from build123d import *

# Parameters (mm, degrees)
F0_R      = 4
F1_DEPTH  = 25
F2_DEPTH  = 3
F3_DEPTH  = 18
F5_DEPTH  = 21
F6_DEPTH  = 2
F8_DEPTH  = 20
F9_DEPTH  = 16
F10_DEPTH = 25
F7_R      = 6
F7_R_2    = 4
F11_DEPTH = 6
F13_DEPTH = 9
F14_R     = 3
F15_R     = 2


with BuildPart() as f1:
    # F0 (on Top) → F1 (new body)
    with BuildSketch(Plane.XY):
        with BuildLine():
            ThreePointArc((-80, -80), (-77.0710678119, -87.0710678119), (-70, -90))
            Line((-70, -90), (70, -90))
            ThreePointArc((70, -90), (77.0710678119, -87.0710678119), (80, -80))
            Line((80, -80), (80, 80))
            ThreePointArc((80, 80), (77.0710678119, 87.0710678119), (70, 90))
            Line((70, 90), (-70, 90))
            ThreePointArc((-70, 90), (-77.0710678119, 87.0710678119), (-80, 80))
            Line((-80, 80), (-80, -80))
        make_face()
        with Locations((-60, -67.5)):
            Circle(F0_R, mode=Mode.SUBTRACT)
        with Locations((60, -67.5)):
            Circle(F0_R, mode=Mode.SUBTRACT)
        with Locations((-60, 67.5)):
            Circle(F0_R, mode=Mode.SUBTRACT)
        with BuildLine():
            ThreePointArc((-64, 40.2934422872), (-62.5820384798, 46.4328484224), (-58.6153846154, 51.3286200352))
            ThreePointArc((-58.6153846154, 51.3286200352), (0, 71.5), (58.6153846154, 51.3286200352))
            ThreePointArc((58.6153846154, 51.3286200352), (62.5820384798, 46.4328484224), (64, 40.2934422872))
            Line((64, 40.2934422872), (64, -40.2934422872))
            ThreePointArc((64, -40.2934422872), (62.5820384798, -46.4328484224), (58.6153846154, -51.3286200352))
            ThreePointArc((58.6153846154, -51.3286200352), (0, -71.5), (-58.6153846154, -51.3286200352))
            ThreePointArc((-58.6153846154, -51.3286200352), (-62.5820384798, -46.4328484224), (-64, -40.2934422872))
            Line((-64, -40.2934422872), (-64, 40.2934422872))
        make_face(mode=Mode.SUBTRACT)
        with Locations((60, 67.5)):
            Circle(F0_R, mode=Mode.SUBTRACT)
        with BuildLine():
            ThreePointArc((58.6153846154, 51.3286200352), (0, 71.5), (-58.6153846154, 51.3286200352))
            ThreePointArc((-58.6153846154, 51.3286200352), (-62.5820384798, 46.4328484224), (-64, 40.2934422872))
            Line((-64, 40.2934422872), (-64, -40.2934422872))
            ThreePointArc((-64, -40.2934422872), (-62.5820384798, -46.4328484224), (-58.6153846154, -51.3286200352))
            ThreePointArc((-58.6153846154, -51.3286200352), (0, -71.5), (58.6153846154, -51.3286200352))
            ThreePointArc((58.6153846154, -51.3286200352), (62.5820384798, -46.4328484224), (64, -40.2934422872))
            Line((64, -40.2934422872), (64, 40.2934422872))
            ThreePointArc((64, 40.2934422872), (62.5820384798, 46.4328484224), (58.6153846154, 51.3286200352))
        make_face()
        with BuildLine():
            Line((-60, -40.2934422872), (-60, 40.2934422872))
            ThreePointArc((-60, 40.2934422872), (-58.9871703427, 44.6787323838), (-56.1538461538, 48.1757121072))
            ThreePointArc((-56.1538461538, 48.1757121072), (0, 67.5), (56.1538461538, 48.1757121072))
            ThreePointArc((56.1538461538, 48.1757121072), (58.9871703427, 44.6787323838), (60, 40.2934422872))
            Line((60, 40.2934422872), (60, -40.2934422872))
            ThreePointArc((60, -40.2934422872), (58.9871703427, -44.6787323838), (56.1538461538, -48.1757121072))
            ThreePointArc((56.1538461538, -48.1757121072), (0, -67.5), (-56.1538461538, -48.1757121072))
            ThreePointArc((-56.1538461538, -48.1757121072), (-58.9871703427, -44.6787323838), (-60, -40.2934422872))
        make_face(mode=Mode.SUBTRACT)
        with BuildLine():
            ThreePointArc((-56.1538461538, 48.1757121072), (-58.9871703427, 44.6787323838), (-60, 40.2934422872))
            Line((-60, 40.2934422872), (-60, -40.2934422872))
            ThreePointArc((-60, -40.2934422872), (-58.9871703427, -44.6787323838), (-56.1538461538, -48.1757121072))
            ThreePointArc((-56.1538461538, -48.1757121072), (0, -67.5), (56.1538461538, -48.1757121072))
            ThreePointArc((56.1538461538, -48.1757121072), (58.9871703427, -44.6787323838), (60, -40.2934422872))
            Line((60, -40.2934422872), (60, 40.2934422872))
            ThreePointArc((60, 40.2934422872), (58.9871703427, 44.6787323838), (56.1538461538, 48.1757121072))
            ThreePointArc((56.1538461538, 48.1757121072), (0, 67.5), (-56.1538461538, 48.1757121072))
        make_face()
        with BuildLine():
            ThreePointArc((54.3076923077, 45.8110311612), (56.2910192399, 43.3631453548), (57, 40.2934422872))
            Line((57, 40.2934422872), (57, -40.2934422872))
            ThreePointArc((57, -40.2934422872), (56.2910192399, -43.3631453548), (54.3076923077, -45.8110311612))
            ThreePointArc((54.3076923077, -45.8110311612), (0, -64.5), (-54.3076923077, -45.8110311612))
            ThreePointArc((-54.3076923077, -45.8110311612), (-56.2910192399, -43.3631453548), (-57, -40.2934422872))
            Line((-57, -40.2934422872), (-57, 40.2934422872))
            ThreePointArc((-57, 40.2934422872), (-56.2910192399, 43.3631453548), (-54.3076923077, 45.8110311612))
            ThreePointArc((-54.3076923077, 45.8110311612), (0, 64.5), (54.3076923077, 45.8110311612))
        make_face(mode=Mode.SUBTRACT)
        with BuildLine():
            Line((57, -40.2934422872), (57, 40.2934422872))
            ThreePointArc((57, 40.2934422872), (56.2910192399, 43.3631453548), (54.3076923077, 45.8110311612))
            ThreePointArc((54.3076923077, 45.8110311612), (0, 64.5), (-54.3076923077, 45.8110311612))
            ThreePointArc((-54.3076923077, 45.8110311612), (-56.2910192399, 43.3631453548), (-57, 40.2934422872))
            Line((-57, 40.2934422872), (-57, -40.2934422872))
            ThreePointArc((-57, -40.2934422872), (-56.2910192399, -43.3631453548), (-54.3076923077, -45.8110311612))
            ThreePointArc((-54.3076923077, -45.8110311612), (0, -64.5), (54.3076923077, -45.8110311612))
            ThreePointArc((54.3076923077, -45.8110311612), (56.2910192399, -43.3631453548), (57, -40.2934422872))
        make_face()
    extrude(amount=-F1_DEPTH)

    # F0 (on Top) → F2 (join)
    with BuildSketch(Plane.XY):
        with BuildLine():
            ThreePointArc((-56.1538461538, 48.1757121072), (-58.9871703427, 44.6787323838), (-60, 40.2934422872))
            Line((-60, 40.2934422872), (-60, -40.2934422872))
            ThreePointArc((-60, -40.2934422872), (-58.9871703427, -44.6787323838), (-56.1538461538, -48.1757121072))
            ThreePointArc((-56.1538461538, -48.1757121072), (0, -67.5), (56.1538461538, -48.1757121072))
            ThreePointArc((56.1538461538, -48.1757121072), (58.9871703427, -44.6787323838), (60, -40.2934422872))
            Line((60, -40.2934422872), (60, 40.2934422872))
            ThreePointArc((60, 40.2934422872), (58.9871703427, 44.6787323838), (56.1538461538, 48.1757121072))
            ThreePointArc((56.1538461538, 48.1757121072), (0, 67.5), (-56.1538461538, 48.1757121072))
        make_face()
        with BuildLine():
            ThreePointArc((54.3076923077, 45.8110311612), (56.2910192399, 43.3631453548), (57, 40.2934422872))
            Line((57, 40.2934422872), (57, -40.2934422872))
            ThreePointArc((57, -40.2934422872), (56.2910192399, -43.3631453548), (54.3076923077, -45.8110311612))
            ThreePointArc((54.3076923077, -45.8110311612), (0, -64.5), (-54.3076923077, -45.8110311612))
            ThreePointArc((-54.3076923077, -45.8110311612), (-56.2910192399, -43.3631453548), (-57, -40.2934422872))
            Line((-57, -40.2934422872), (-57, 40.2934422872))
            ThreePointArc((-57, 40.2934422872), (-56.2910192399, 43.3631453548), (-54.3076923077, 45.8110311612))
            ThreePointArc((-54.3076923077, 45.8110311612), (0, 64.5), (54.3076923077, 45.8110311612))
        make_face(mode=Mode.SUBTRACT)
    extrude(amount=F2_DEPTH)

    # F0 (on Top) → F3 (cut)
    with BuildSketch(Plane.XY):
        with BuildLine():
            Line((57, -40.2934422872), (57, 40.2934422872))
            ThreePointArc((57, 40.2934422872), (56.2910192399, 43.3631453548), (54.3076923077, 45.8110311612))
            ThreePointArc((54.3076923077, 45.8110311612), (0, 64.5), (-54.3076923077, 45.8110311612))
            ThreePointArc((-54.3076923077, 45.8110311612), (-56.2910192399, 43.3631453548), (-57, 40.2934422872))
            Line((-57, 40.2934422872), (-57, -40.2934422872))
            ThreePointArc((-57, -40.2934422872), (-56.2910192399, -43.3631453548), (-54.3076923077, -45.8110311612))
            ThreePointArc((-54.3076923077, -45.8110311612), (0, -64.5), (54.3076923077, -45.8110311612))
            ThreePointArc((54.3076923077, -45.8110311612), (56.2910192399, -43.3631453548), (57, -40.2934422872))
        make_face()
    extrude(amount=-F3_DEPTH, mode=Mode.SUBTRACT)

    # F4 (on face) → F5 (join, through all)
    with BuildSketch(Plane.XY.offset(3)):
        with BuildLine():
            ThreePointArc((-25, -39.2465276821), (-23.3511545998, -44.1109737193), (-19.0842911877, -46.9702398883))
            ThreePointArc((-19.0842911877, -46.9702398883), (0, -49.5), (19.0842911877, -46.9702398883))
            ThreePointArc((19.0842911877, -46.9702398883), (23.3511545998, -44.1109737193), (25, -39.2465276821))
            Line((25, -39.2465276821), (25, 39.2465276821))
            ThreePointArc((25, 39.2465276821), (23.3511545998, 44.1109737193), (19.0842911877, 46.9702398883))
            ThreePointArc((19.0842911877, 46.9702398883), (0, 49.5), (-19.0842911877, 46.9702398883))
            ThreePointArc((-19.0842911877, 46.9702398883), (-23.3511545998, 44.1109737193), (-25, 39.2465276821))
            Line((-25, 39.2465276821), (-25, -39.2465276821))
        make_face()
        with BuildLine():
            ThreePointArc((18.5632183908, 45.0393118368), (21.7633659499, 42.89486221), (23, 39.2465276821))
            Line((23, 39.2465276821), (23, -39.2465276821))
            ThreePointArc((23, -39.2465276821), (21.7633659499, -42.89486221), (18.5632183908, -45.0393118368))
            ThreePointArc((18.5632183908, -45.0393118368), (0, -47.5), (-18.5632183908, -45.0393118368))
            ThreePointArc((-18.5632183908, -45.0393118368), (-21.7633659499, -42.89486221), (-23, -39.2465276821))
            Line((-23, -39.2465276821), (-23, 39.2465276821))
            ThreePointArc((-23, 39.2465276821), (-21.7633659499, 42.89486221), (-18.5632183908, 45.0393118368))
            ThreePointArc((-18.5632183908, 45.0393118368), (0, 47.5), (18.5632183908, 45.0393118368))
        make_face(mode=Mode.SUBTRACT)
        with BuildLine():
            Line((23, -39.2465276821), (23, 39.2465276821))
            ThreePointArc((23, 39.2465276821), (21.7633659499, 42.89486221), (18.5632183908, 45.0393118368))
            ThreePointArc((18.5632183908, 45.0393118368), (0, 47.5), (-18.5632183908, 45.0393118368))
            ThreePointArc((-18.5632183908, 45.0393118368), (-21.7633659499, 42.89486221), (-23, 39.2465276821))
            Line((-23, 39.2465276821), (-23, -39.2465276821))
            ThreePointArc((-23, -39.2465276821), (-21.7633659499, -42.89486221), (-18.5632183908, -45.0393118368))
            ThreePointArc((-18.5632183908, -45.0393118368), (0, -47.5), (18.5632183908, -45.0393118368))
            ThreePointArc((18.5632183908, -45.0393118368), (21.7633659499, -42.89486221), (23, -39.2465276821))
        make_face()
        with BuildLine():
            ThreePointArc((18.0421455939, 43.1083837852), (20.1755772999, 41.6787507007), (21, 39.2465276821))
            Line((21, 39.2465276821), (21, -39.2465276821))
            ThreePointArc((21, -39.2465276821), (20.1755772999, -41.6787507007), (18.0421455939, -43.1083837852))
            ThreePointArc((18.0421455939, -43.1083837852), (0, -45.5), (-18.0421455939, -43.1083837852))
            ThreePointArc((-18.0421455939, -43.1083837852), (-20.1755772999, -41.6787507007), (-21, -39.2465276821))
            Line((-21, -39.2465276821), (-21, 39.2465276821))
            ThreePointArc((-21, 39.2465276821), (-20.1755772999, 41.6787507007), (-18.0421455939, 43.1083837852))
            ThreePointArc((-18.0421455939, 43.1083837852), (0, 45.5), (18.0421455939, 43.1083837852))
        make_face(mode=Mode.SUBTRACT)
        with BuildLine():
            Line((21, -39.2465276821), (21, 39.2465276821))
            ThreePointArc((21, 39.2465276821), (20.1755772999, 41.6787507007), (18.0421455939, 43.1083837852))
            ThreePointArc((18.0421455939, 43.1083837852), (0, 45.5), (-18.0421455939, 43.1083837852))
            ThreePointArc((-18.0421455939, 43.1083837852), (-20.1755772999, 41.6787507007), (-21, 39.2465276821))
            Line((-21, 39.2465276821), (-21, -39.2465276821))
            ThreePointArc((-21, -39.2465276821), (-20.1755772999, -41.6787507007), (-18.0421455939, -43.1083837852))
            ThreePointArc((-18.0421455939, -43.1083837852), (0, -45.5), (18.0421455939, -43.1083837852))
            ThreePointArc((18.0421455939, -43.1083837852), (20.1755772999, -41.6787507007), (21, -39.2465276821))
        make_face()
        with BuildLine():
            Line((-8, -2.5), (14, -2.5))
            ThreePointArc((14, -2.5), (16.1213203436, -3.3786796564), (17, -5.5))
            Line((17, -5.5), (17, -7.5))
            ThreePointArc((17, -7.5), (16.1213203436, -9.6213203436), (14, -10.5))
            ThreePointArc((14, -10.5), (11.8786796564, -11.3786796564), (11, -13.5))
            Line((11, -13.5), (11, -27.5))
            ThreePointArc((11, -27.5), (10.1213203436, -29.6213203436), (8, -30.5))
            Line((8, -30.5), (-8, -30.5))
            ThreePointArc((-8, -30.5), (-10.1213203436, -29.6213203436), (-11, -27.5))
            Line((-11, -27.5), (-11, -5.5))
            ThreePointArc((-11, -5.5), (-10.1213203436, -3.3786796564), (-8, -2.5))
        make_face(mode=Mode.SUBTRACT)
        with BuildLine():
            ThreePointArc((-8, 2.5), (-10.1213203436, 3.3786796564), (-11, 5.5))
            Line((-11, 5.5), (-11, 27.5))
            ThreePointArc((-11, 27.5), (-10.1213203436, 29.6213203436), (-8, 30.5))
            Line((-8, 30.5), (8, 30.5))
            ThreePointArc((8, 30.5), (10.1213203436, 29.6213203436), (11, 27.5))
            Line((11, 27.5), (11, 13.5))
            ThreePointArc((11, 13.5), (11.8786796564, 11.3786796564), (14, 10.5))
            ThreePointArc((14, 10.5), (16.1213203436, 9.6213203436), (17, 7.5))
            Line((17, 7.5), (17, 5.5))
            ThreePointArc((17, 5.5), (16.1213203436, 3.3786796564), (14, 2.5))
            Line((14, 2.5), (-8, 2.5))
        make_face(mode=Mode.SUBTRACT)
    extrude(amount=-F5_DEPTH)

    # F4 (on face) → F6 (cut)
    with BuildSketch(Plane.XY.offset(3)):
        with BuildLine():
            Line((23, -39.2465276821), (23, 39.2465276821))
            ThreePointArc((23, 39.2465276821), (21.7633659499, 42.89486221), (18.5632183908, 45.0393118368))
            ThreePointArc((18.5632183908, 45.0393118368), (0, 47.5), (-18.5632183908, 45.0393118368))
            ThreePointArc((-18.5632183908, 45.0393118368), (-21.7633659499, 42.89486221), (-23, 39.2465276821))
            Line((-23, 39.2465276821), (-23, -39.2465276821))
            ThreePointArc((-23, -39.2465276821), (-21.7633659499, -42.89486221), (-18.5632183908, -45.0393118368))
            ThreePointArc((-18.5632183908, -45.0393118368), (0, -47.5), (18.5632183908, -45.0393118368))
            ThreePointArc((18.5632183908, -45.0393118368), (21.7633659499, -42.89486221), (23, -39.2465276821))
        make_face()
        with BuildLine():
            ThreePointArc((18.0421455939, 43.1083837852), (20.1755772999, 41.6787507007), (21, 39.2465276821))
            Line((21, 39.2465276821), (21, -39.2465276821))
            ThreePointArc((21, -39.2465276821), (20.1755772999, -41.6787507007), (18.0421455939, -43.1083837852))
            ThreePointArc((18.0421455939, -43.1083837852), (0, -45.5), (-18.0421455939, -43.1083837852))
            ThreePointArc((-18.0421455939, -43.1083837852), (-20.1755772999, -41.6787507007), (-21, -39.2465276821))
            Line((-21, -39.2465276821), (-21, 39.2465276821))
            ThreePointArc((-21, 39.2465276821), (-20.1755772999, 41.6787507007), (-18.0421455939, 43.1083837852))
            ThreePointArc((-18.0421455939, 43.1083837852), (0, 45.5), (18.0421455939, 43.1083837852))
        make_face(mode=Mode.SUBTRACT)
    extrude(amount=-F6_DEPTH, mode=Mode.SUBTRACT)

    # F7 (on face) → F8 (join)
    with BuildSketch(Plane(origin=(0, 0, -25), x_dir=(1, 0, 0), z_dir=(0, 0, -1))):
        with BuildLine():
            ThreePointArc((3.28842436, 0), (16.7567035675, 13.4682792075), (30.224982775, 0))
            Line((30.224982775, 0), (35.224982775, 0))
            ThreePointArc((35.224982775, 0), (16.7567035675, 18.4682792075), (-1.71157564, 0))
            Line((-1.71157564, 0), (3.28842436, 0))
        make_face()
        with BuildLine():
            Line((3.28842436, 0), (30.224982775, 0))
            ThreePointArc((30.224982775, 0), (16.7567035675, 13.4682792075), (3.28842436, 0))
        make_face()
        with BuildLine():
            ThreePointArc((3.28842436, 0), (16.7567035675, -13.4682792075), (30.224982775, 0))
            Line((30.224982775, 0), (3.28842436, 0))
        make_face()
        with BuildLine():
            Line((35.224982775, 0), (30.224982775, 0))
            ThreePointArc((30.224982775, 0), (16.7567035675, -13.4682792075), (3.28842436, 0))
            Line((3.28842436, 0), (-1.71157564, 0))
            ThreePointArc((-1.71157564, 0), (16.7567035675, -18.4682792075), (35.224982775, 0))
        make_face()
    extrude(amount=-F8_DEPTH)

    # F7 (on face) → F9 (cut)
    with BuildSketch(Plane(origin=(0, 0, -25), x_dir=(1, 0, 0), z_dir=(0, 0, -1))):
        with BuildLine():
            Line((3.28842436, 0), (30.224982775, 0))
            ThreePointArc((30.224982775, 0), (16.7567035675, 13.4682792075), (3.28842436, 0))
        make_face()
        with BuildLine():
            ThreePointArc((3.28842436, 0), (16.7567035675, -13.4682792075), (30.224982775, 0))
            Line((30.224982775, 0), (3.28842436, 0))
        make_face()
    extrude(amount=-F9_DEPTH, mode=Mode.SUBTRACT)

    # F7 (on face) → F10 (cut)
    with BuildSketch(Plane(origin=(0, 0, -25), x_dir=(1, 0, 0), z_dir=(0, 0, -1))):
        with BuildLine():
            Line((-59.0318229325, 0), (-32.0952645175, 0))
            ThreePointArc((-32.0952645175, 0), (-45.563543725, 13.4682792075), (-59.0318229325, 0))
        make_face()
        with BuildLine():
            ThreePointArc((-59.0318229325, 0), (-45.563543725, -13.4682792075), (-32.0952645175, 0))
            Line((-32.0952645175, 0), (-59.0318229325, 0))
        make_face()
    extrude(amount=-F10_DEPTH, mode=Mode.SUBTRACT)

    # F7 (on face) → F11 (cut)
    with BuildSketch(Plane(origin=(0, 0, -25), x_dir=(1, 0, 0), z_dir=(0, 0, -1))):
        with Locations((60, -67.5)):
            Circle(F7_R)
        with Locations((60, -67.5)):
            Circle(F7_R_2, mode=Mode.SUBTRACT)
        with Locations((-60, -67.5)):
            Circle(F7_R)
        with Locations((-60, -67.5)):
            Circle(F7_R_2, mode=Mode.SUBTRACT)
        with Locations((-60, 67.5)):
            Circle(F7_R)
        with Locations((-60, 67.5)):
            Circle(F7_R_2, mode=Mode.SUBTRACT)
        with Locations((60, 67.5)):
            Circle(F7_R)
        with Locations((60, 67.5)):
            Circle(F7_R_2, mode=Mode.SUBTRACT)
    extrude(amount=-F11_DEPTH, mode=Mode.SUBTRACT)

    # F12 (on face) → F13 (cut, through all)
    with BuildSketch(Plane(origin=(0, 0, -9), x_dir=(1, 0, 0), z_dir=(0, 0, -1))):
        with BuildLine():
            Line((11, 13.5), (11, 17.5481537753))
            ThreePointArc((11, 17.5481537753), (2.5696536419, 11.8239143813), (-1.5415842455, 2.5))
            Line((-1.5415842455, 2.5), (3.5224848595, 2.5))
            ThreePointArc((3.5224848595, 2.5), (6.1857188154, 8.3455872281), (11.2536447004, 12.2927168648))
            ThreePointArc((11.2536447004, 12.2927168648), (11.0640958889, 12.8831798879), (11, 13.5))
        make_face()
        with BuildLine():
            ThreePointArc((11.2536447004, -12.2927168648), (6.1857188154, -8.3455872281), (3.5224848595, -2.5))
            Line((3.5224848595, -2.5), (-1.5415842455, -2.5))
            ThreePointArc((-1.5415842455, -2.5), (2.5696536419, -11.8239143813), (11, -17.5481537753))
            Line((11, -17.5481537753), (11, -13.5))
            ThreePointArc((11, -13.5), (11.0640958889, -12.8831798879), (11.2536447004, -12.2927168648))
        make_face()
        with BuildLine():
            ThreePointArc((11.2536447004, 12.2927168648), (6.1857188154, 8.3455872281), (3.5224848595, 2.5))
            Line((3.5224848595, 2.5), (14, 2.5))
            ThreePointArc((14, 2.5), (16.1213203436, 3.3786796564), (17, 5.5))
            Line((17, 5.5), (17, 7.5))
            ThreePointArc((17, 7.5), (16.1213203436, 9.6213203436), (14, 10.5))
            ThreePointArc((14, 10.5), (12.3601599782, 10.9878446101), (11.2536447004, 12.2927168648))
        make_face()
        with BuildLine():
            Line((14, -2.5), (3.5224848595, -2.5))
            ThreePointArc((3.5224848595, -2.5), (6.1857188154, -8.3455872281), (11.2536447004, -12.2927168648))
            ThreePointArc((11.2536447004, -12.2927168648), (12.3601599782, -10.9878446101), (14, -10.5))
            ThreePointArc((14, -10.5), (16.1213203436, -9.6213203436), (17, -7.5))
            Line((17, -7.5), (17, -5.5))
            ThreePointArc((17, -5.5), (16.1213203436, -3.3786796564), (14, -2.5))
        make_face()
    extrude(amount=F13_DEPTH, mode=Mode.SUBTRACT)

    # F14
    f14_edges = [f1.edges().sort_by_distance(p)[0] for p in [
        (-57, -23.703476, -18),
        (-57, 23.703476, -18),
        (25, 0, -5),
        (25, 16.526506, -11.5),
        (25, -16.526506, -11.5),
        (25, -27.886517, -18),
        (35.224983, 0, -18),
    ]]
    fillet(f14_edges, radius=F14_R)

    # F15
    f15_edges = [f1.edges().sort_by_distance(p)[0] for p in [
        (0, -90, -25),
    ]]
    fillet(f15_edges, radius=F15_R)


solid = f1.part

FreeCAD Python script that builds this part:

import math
import FreeCAD as App
import Part
import Sketcher

V = App.Vector


def edges_at(feature, points):
    """Names of the edges that pass closest to the given points."""
    edges = feature.Shape.Edges
    near = lambda p: min(range(len(edges)), key=lambda i: edges[i].distToShape(Part.Vertex(*p))[0])
    return sorted({f"Edge{near(p) + 1}" for p in points})

doc = App.newDocument("Part")
body = doc.addObject("PartDesign::Body", "Body")

# Sketch on XY plane
sketch1 = body.newObject("Sketcher::SketchObject", "Sketch")
sketch1.AttachmentSupport = (doc.getObject("XY_Plane"), [""])
sketch1.MapMode = "FlatFace"
sketch1.addGeometry(Part.ArcOfCircle(Part.Circle(V(-70, -80, 0), V(0, 0, 1), 10), math.radians(180), math.radians(270)), False)
sketch1.addGeometry(Part.LineSegment(V(-70, -90, 0), V(70, -90, 0)), False)
sketch1.addGeometry(Part.ArcOfCircle(Part.Circle(V(70, -80, 0), V(0, 0, 1), 10), math.radians(-90), math.radians(0)), False)
sketch1.addGeometry(Part.LineSegment(V(80, -80, 0), V(80, 80, 0)), False)
sketch1.addGeometry(Part.ArcOfCircle(Part.Circle(V(70, 80, 0), V(0, 0, 1), 10), math.radians(0), math.radians(90)), False)
sketch1.addGeometry(Part.LineSegment(V(70, 90, 0), V(-70, 90, 0)), False)
sketch1.addGeometry(Part.ArcOfCircle(Part.Circle(V(-70, 80, 0), V(0, 0, 1), 10), math.radians(90), math.radians(180)), False)
sketch1.addGeometry(Part.LineSegment(V(-80, 80, 0), V(-80, -80, 0)), False)
sketch1.addGeometry(Part.Circle(V(-60, -67.5, 0), V(0, 0, 1), 4), False)
sketch1.addGeometry(Part.Circle(V(60, -67.5, 0), V(0, 0, 1), 4), False)
sketch1.addGeometry(Part.Circle(V(-60, 67.5, 0), V(0, 0, 1), 4), False)
sketch1.addGeometry(Part.Circle(V(60, 67.5, 0), V(0, 0, 1), 4), False)
sketch1.addConstraint(Sketcher.Constraint("Tangent", 0, 2, 1, 1))
sketch1.addConstraint(Sketcher.Constraint("Tangent", 1, 2, 2, 1))
sketch1.addConstraint(Sketcher.Constraint("Tangent", 2, 2, 3, 1))
sketch1.addConstraint(Sketcher.Constraint("Tangent", 3, 2, 4, 1))
sketch1.addConstraint(Sketcher.Constraint("Tangent", 4, 2, 5, 1))
sketch1.addConstraint(Sketcher.Constraint("Tangent", 5, 2, 6, 1))
sketch1.addConstraint(Sketcher.Constraint("Tangent", 6, 2, 7, 1))
sketch1.addConstraint(Sketcher.Constraint("Tangent", 7, 2, 0, 1))
sketch1.addConstraint(Sketcher.Constraint("Horizontal", 1))
sketch1.addConstraint(Sketcher.Constraint("Vertical", 3))
sketch1.addConstraint(Sketcher.Constraint("Horizontal", 5))
sketch1.addConstraint(Sketcher.Constraint("Vertical", 7))
sketch1.addConstraint(Sketcher.Constraint("Equal", 0, 2))
sketch1.addConstraint(Sketcher.Constraint("Equal", 2, 4))
sketch1.addConstraint(Sketcher.Constraint("Equal", 4, 6))
sketch1.addConstraint(Sketcher.Constraint("Equal", 8, 9))
sketch1.addConstraint(Sketcher.Constraint("Equal", 9, 10))
sketch1.addConstraint(Sketcher.Constraint("Equal", 10, 11))
sketch1.addConstraint(Sketcher.Constraint("Symmetric", 0, 3, 4, 3, -1, 1))
sketch1.addConstraint(Sketcher.Constraint("Symmetric", 9, 3, 10, 3, -1, 1))
sketch1.addConstraint(Sketcher.Constraint("Symmetric", 8, 3, 11, 3, -1, 1))
sketch1.addConstraint(Sketcher.Constraint("Symmetric", 8, 3, 9, 3, -2))
sketch1.addConstraint(Sketcher.Constraint("Diameter", 8, 8.0))
sketch1.addConstraint(Sketcher.Constraint("Radius", 0, 10.0))
sketch1.addConstraint(Sketcher.Constraint("DistanceX", 1, 1, 1, 2, 140.0))
sketch1.addConstraint(Sketcher.Constraint("DistanceY", 3, 1, 3, 2, 160.0))
sketch1.addConstraint(Sketcher.Constraint("DistanceX", 8, 3, -1, 1, 60.0))
sketch1.addConstraint(Sketcher.Constraint("DistanceY", 8, 3, 10, 3, 135.0))
pad1 = body.newObject("PartDesign::Pad", "Pad")
pad1.Profile = sketch1
pad1.Length = 25
pad1.Reversed = True

# Sketch on XY plane
sketch2 = body.newObject("Sketcher::SketchObject", "Sketch001")
sketch2.AttachmentSupport = (doc.getObject("XY_Plane"), [""])
sketch2.MapMode = "FlatFace"
sketch2.addGeometry(Part.ArcOfCircle(Part.Circle(V(-50, 40.293442, 0), V(0, 0, 1), 10), math.radians(127.979872), math.radians(180)), False)
sketch2.addGeometry(Part.LineSegment(V(-60, 40.293442, 0), V(-60, -40.293442, 0)), False)
sketch2.addGeometry(Part.ArcOfCircle(Part.Circle(V(-50, -40.293442, 0), V(0, 0, 1), 10), math.radians(180), math.radians(232.020128)), False)
sketch2.addGeometry(Part.ArcOfCircle(Part.Circle(V(0, 23.75, 0), V(0, 0, 1), 91.25), math.radians(-127.979872), math.radians(-52.020128)), False)
sketch2.addGeometry(Part.ArcOfCircle(Part.Circle(V(50, -40.293442, 0), V(0, 0, 1), 10), math.radians(-52.020128), math.radians(0)), False)
sketch2.addGeometry(Part.LineSegment(V(60, -40.293442, 0), V(60, 40.293442, 0)), False)
sketch2.addGeometry(Part.ArcOfCircle(Part.Circle(V(50, 40.293442, 0), V(0, 0, 1), 10), math.radians(0), math.radians(52.020128)), False)
sketch2.addGeometry(Part.ArcOfCircle(Part.Circle(V(0, -23.75, 0), V(0, 0, 1), 91.25), math.radians(52.020128), math.radians(127.979872)), False)
sketch2.addGeometry(Part.ArcOfCircle(Part.Circle(V(0, -23.75, 0), V(0, 0, 1), 88.25), math.radians(52.020128), math.radians(127.979872)), False)
sketch2.addGeometry(Part.ArcOfCircle(Part.Circle(V(50, 40.293442, 0), V(0, 0, 1), 7), math.radians(0), math.radians(52.020128)), False)
sketch2.addGeometry(Part.LineSegment(V(57, 40.293442, 0), V(57, -40.293442, 0)), False)
sketch2.addGeometry(Part.ArcOfCircle(Part.Circle(V(50, -40.293442, 0), V(0, 0, 1), 7), math.radians(-52.020128), math.radians(0)), False)
sketch2.addGeometry(Part.ArcOfCircle(Part.Circle(V(0, 23.75, 0), V(0, 0, 1), 88.25), math.radians(-127.979872), math.radians(-52.020128)), False)
sketch2.addGeometry(Part.ArcOfCircle(Part.Circle(V(-50, -40.293442, 0), V(0, 0, 1), 7), math.radians(180), math.radians(232.020128)), False)
sketch2.addGeometry(Part.LineSegment(V(-57, -40.293442, 0), V(-57, 40.293442, 0)), False)
sketch2.addGeometry(Part.ArcOfCircle(Part.Circle(V(-50, 40.293442, 0), V(0, 0, 1), 7), math.radians(127.979872), math.radians(180)), False)
sketch2.addConstraint(Sketcher.Constraint("Tangent", 0, 2, 1, 1))
sketch2.addConstraint(Sketcher.Constraint("Tangent", 1, 2, 2, 1))
sketch2.addConstraint(Sketcher.Constraint("Tangent", 2, 2, 3, 1))
sketch2.addConstraint(Sketcher.Constraint("Tangent", 3, 2, 4, 1))
sketch2.addConstraint(Sketcher.Constraint("Tangent", 4, 2, 5, 1))
sketch2.addConstraint(Sketcher.Constraint("Tangent", 5, 2, 6, 1))
sketch2.addConstraint(Sketcher.Constraint("Tangent", 6, 2, 7, 1))
sketch2.addConstraint(Sketcher.Constraint("Tangent", 7, 2, 0, 1))
sketch2.addConstraint(Sketcher.Constraint("Tangent", 8, 1, 9, 2))
sketch2.addConstraint(Sketcher.Constraint("Tangent", 9, 1, 10, 1))
sketch2.addConstraint(Sketcher.Constraint("Tangent", 10, 2, 11, 2))
sketch2.addConstraint(Sketcher.Constraint("Tangent", 11, 1, 12, 2))
sketch2.addConstraint(Sketcher.Constraint("Tangent", 12, 1, 13, 2))
sketch2.addConstraint(Sketcher.Constraint("Tangent", 13, 1, 14, 1))
sketch2.addConstraint(Sketcher.Constraint("Tangent", 14, 2, 15, 2))
sketch2.addConstraint(Sketcher.Constraint("Tangent", 15, 1, 8, 2))
sketch2.addConstraint(Sketcher.Constraint("Vertical", 1))
sketch2.addConstraint(Sketcher.Constraint("Vertical", 5))
sketch2.addConstraint(Sketcher.Constraint("Vertical", 10))
sketch2.addConstraint(Sketcher.Constraint("Vertical", 14))
sketch2.addConstraint(Sketcher.Constraint("Coincident", 8, 3, 7, 3))
sketch2.addConstraint(Sketcher.Constraint("Coincident", 9, 3, 6, 3))
sketch2.addConstraint(Sketcher.Constraint("Coincident", 11, 3, 4, 3))
sketch2.addConstraint(Sketcher.Constraint("Coincident", 12, 3, 3, 3))
sketch2.addConstraint(Sketcher.Constraint("Coincident", 13, 3, 2, 3))
sketch2.addConstraint(Sketcher.Constraint("Equal", 0, 2))
sketch2.addConstraint(Sketcher.Constraint("Equal", 2, 4))
sketch2.addConstraint(Sketcher.Constraint("Equal", 4, 6))
sketch2.addConstraint(Sketcher.Constraint("Equal", 3, 7))
sketch2.addConstraint(Sketcher.Constraint("Equal", 13, 15))
sketch2.addConstraint(Sketcher.Constraint("Symmetric", 0, 3, 4, 3, -1, 1))
sketch2.addConstraint(Sketcher.Constraint("Symmetric", 3, 3, 7, 3, -1))
sketch2.addConstraint(Sketcher.Constraint("Radius", 0, 10.0))
sketch2.addConstraint(Sketcher.Constraint("Radius", 9, 7.0))
sketch2.addConstraint(Sketcher.Constraint("Radius", 3, 91.25))
sketch2.addConstraint(Sketcher.Constraint("DistanceX", 0, 3, -1, 1, 50.0))
sketch2.addConstraint(Sketcher.Constraint("DistanceY", 7, 3, 3, 3, 47.5))
pad2 = body.newObject("PartDesign::Pad", "Pad001")
pad2.Profile = sketch2
pad2.Length = 3

# Sketch on XY plane
sketch3 = body.newObject("Sketcher::SketchObject", "Sketch002")
sketch3.AttachmentSupport = (doc.getObject("XY_Plane"), [""])
sketch3.MapMode = "FlatFace"
sketch3.addGeometry(Part.LineSegment(V(57, -40.293442, 0), V(57, 40.293442, 0)), False)
sketch3.addGeometry(Part.ArcOfCircle(Part.Circle(V(50, 40.293442, 0), V(0, 0, 1), 7), math.radians(0), math.radians(52.020128)), False)
sketch3.addGeometry(Part.ArcOfCircle(Part.Circle(V(0, -23.75, 0), V(0, 0, 1), 88.25), math.radians(52.020128), math.radians(127.979872)), False)
sketch3.addGeometry(Part.ArcOfCircle(Part.Circle(V(-50, 40.293442, 0), V(0, 0, 1), 7), math.radians(127.979872), math.radians(180)), False)
sketch3.addGeometry(Part.LineSegment(V(-57, 40.293442, 0), V(-57, -40.293442, 0)), False)
sketch3.addGeometry(Part.ArcOfCircle(Part.Circle(V(-50, -40.293442, 0), V(0, 0, 1), 7), math.radians(180), math.radians(232.020128)), False)
sketch3.addGeometry(Part.ArcOfCircle(Part.Circle(V(0, 23.75, 0), V(0, 0, 1), 88.25), math.radians(-127.979872), math.radians(-52.020128)), False)
sketch3.addGeometry(Part.ArcOfCircle(Part.Circle(V(50, -40.293442, 0), V(0, 0, 1), 7), math.radians(-52.020128), math.radians(0)), False)
sketch3.addConstraint(Sketcher.Constraint("Tangent", 0, 2, 1, 1))
sketch3.addConstraint(Sketcher.Constraint("Tangent", 1, 2, 2, 1))
sketch3.addConstraint(Sketcher.Constraint("Tangent", 2, 2, 3, 1))
sketch3.addConstraint(Sketcher.Constraint("Tangent", 3, 2, 4, 1))
sketch3.addConstraint(Sketcher.Constraint("Tangent", 4, 2, 5, 1))
sketch3.addConstraint(Sketcher.Constraint("Tangent", 5, 2, 6, 1))
sketch3.addConstraint(Sketcher.Constraint("Tangent", 6, 2, 7, 1))
sketch3.addConstraint(Sketcher.Constraint("Tangent", 7, 2, 0, 1))
sketch3.addConstraint(Sketcher.Constraint("Vertical", 0))
sketch3.addConstraint(Sketcher.Constraint("Vertical", 4))
sketch3.addConstraint(Sketcher.Constraint("Equal", 1, 3))
sketch3.addConstraint(Sketcher.Constraint("Equal", 3, 5))
sketch3.addConstraint(Sketcher.Constraint("Equal", 2, 6))
sketch3.addConstraint(Sketcher.Constraint("Equal", 5, 7))
sketch3.addConstraint(Sketcher.Constraint("Symmetric", 1, 3, 5, 3, -1, 1))
sketch3.addConstraint(Sketcher.Constraint("Symmetric", 2, 3, 6, 3, -1))
sketch3.addConstraint(Sketcher.Constraint("Radius", 1, 7.0))
sketch3.addConstraint(Sketcher.Constraint("Radius", 2, 88.25))
sketch3.addConstraint(Sketcher.Constraint("DistanceX", -1, 1, 1, 3, 50.0))
sketch3.addConstraint(Sketcher.Constraint("DistanceY", 2, 3, 6, 3, 47.5))
pocket1 = body.newObject("PartDesign::Pocket", "Pocket")
pocket1.Profile = sketch3
pocket1.Length = 18

# Sketch on XY plane
sketch4 = body.newObject("Sketcher::SketchObject", "Sketch003")
sketch4.AttachmentSupport = (doc.getObject("XY_Plane"), [""])
sketch4.MapMode = "FlatFace"
sketch4.AttachmentOffset = App.Placement(V(0, 0, 3), App.Rotation())
sketch4.addGeometry(Part.ArcOfCircle(Part.Circle(V(-17, -39.246528, 0), V(0, 0, 1), 8), math.radians(180), math.radians(254.898107)), False)
sketch4.addGeometry(Part.ArcOfCircle(Part.Circle(V(0, 23.75, 0), V(0, 0, 1), 73.25), math.radians(-105.101893), math.radians(-74.898107)), False)
sketch4.addGeometry(Part.ArcOfCircle(Part.Circle(V(17, -39.246528, 0), V(0, 0, 1), 8), math.radians(-74.898107), math.radians(0)), False)
sketch4.addGeometry(Part.LineSegment(V(25, -39.246528, 0), V(25, 39.246528, 0)), False)
sketch4.addGeometry(Part.ArcOfCircle(Part.Circle(V(17, 39.246528, 0), V(0, 0, 1), 8), math.radians(0), math.radians(74.898107)), False)
sketch4.addGeometry(Part.ArcOfCircle(Part.Circle(V(0, -23.75, 0), V(0, 0, 1), 73.25), math.radians(74.898107), math.radians(105.101893)), False)
sketch4.addGeometry(Part.ArcOfCircle(Part.Circle(V(-17, 39.246528, 0), V(0, 0, 1), 8), math.radians(105.101893), math.radians(180)), False)
sketch4.addGeometry(Part.LineSegment(V(-25, 39.246528, 0), V(-25, -39.246528, 0)), False)
sketch4.addGeometry(Part.ArcOfCircle(Part.Circle(V(-8, -5.5, 0), V(0, 0, 1), 3), math.radians(90), math.radians(180)), False)
sketch4.addGeometry(Part.LineSegment(V(-8, -2.5, 0), V(14, -2.5, 0)), False)
sketch4.addGeometry(Part.ArcOfCircle(Part.Circle(V(14, -5.5, 0), V(0, 0, 1), 3), math.radians(0), math.radians(90)), False)
sketch4.addGeometry(Part.LineSegment(V(17, -5.5, 0), V(17, -7.5, 0)), False)
sketch4.addGeometry(Part.ArcOfCircle(Part.Circle(V(14, -7.5, 0), V(0, 0, 1), 3), math.radians(-90), math.radians(0)), False)
sketch4.addGeometry(Part.ArcOfCircle(Part.Circle(V(14, -13.5, 0), V(0, 0, 1), 3), math.radians(90), math.radians(180)), False)
sketch4.addGeometry(Part.LineSegment(V(11, -13.5, 0), V(11, -27.5, 0)), False)
sketch4.addGeometry(Part.ArcOfCircle(Part.Circle(V(8, -27.5, 0), V(0, 0, 1), 3), math.radians(-90), math.radians(0)), False)
sketch4.addGeometry(Part.LineSegment(V(8, -30.5, 0), V(-8, -30.5, 0)), False)
sketch4.addGeometry(Part.ArcOfCircle(Part.Circle(V(-8, -27.5, 0), V(0, 0, 1), 3), math.radians(180), math.radians(270)), False)
sketch4.addGeometry(Part.LineSegment(V(-11, -27.5, 0), V(-11, -5.5, 0)), False)
sketch4.addGeometry(Part.LineSegment(V(14, 2.5, 0), V(-8, 2.5, 0)), False)
sketch4.addGeometry(Part.ArcOfCircle(Part.Circle(V(-8, 5.5, 0), V(0, 0, 1), 3), math.radians(180), math.radians(270)), False)
sketch4.addGeometry(Part.LineSegment(V(-11, 5.5, 0), V(-11, 27.5, 0)), False)
sketch4.addGeometry(Part.ArcOfCircle(Part.Circle(V(-8, 27.5, 0), V(0, 0, 1), 3), math.radians(90), math.radians(180)), False)
sketch4.addGeometry(Part.LineSegment(V(-8, 30.5, 0), V(8, 30.5, 0)), False)
sketch4.addGeometry(Part.ArcOfCircle(Part.Circle(V(8, 27.5, 0), V(0, 0, 1), 3), math.radians(0), math.radians(90)), False)
sketch4.addGeometry(Part.LineSegment(V(11, 27.5, 0), V(11, 13.5, 0)), False)
sketch4.addGeometry(Part.ArcOfCircle(Part.Circle(V(14, 13.5, 0), V(0, 0, 1), 3), math.radians(180), math.radians(270)), False)
sketch4.addGeometry(Part.ArcOfCircle(Part.Circle(V(14, 7.5, 0), V(0, 0, 1), 3), math.radians(0), math.radians(90)), False)
sketch4.addGeometry(Part.LineSegment(V(17, 7.5, 0), V(17, 5.5, 0)), False)
sketch4.addGeometry(Part.ArcOfCircle(Part.Circle(V(14, 5.5, 0), V(0, 0, 1), 3), math.radians(-90), math.radians(0)), False)
sketch4.addConstraint(Sketcher.Constraint("Tangent", 0, 2, 1, 1))
sketch4.addConstraint(Sketcher.Constraint("Tangent", 1, 2, 2, 1))
sketch4.addConstraint(Sketcher.Constraint("Tangent", 2, 2, 3, 1))
sketch4.addConstraint(Sketcher.Constraint("Tangent", 3, 2, 4, 1))
sketch4.addConstraint(Sketcher.Constraint("Tangent", 4, 2, 5, 1))
sketch4.addConstraint(Sketcher.Constraint("Tangent", 5, 2, 6, 1))
sketch4.addConstraint(Sketcher.Constraint("Tangent", 6, 2, 7, 1))
sketch4.addConstraint(Sketcher.Constraint("Tangent", 7, 2, 0, 1))
sketch4.addConstraint(Sketcher.Constraint("Tangent", 8, 1, 9, 1))
sketch4.addConstraint(Sketcher.Constraint("Tangent", 9, 2, 10, 2))
sketch4.addConstraint(Sketcher.Constraint("Tangent", 10, 1, 11, 1))
sketch4.addConstraint(Sketcher.Constraint("Tangent", 11, 2, 12, 2))
sketch4.addConstraint(Sketcher.Constraint("Tangent", 12, 1, 13, 1))
sketch4.addConstraint(Sketcher.Constraint("Tangent", 13, 2, 14, 1))
sketch4.addConstraint(Sketcher.Constraint("Tangent", 14, 2, 15, 2))
sketch4.addConstraint(Sketcher.Constraint("Tangent", 15, 1, 16, 1))
sketch4.addConstraint(Sketcher.Constraint("Tangent", 16, 2, 17, 2))
sketch4.addConstraint(Sketcher.Constraint("Tangent", 17, 1, 18, 1))
sketch4.addConstraint(Sketcher.Constraint("Tangent", 18, 2, 8, 2))
sketch4.addConstraint(Sketcher.Constraint("Tangent", 19, 2, 20, 2))
sketch4.addConstraint(Sketcher.Constraint("Tangent", 20, 1, 21, 1))
sketch4.addConstraint(Sketcher.Constraint("Tangent", 21, 2, 22, 2))
sketch4.addConstraint(Sketcher.Constraint("Tangent", 22, 1, 23, 1))
sketch4.addConstraint(Sketcher.Constraint("Tangent", 23, 2, 24, 2))
sketch4.addConstraint(Sketcher.Constraint("Tangent", 24, 1, 25, 1))
sketch4.addConstraint(Sketcher.Constraint("Tangent", 25, 2, 26, 1))
sketch4.addConstraint(Sketcher.Constraint("Tangent", 26, 2, 27, 2))
sketch4.addConstraint(Sketcher.Constraint("Tangent", 27, 1, 28, 1))
sketch4.addConstraint(Sketcher.Constraint("Tangent", 28, 2, 29, 2))
sketch4.addConstraint(Sketcher.Constraint("Tangent", 29, 1, 19, 1))
sketch4.addConstraint(Sketcher.Constraint("Vertical", 3))
sketch4.addConstraint(Sketcher.Constraint("Vertical", 7))
sketch4.addConstraint(Sketcher.Constraint("Horizontal", 9))
sketch4.addConstraint(Sketcher.Constraint("Vertical", 11))
sketch4.addConstraint(Sketcher.Constraint("Vertical", 14))
sketch4.addConstraint(Sketcher.Constraint("Horizontal", 16))
sketch4.addConstraint(Sketcher.Constraint("Vertical", 18))
sketch4.addConstraint(Sketcher.Constraint("Horizontal", 19))
sketch4.addConstraint(Sketcher.Constraint("Vertical", 21))
sketch4.addConstraint(Sketcher.Constraint("Horizontal", 23))
sketch4.addConstraint(Sketcher.Constraint("Vertical", 25))
sketch4.addConstraint(Sketcher.Constraint("Vertical", 28))
sketch4.addConstraint(Sketcher.Constraint("Equal", 0, 2))
sketch4.addConstraint(Sketcher.Constraint("Equal", 2, 4))
sketch4.addConstraint(Sketcher.Constraint("Equal", 1, 5))
sketch4.addConstraint(Sketcher.Constraint("Equal", 4, 6))
sketch4.addConstraint(Sketcher.Constraint("Equal", 8, 10))
sketch4.addConstraint(Sketcher.Constraint("Equal", 10, 12))
sketch4.addConstraint(Sketcher.Constraint("Equal", 12, 13))
sketch4.addConstraint(Sketcher.Constraint("Equal", 13, 15))
sketch4.addConstraint(Sketcher.Constraint("Equal", 15, 17))
sketch4.addConstraint(Sketcher.Constraint("Equal", 17, 20))
sketch4.addConstraint(Sketcher.Constraint("Equal", 20, 22))
sketch4.addConstraint(Sketcher.Constraint("Equal", 22, 24))
sketch4.addConstraint(Sketcher.Constraint("Equal", 24, 26))
sketch4.addConstraint(Sketcher.Constraint("Equal", 26, 27))
sketch4.addConstraint(Sketcher.Constraint("Equal", 27, 29))
sketch4.addConstraint(Sketcher.Constraint("Symmetric", 0, 3, 4, 3, -1, 1))
sketch4.addConstraint(Sketcher.Constraint("Symmetric", 15, 3, 22, 3, -1, 1))
sketch4.addConstraint(Sketcher.Constraint("Symmetric", 1, 3, 5, 3, -1))
sketch4.addConstraint(Sketcher.Constraint("Symmetric", 8, 3, 20, 3, -1))
sketch4.addConstraint(Sketcher.Constraint("Symmetric", 13, 3, 26, 3, -1))
sketch4.addConstraint(Sketcher.Constraint("Vertical", 12, 3, 13, 3))
sketch4.addConstraint(Sketcher.Constraint("Vertical", 26, 3, 27, 3))
sketch4.addConstraint(Sketcher.Constraint("Vertical", 4, 3, 10, 1))
sketch4.addConstraint(Sketcher.Constraint("Equal", 19, 18))
sketch4.addConstraint(Sketcher.Constraint("Radius", 0, 8.0))
sketch4.addConstraint(Sketcher.Constraint("Radius", 8, 3.0))
sketch4.addConstraint(Sketcher.Constraint("DistanceX", 9, 1, 9, 2, 22.0))
sketch4.addConstraint(Sketcher.Constraint("DistanceY", 11, 2, 11, 1, 2.0))
sketch4.addConstraint(Sketcher.Constraint("Radius", 1, 73.25))
sketch4.addConstraint(Sketcher.Constraint("DistanceY", 8, 3, 20, 3, 11.0))
sketch4.addConstraint(Sketcher.Constraint("DistanceY", 5, 3, 1, 3, 47.5))
pad3 = body.newObject("PartDesign::Pad", "Pad002")
pad3.Profile = sketch4
pad3.Type = "UpToLast"
pad3.Reversed = True

# Sketch on XY plane
sketch5 = body.newObject("Sketcher::SketchObject", "Sketch004")
sketch5.AttachmentSupport = (doc.getObject("XY_Plane"), [""])
sketch5.MapMode = "FlatFace"
sketch5.AttachmentOffset = App.Placement(V(0, 0, 3), App.Rotation())
sketch5.addGeometry(Part.LineSegment(V(23, -39.246528, 0), V(23, 39.246528, 0)), False)
sketch5.addGeometry(Part.ArcOfCircle(Part.Circle(V(17, 39.246528, 0), V(0, 0, 1), 6), math.radians(0), math.radians(74.898107)), False)
sketch5.addGeometry(Part.ArcOfCircle(Part.Circle(V(0, -23.75, 0), V(0, 0, 1), 71.25), math.radians(74.898107), math.radians(105.101893)), False)
sketch5.addGeometry(Part.ArcOfCircle(Part.Circle(V(-17, 39.246528, 0), V(0, 0, 1), 6), math.radians(105.101893), math.radians(180)), False)
sketch5.addGeometry(Part.LineSegment(V(-23, 39.246528, 0), V(-23, -39.246528, 0)), False)
sketch5.addGeometry(Part.ArcOfCircle(Part.Circle(V(-17, -39.246528, 0), V(0, 0, 1), 6), math.radians(180), math.radians(254.898107)), False)
sketch5.addGeometry(Part.ArcOfCircle(Part.Circle(V(0, 23.75, 0), V(0, 0, 1), 71.25), math.radians(-105.101893), math.radians(-74.898107)), False)
sketch5.addGeometry(Part.ArcOfCircle(Part.Circle(V(17, -39.246528, 0), V(0, 0, 1), 6), math.radians(-74.898107), math.radians(0)), False)
sketch5.addGeometry(Part.ArcOfCircle(Part.Circle(V(0, -23.75, 0), V(0, 0, 1), 69.25), math.radians(74.898107), math.radians(105.101893)), False)
sketch5.addGeometry(Part.ArcOfCircle(Part.Circle(V(17, 39.246528, 0), V(0, 0, 1), 4), math.radians(0), math.radians(74.898107)), False)
sketch5.addGeometry(Part.LineSegment(V(21, 39.246528, 0), V(21, -39.246528, 0)), False)
sketch5.addGeometry(Part.ArcOfCircle(Part.Circle(V(17, -39.246528, 0), V(0, 0, 1), 4), math.radians(-74.898107), math.radians(0)), False)
sketch5.addGeometry(Part.ArcOfCircle(Part.Circle(V(0, 23.75, 0), V(0, 0, 1), 69.25), math.radians(-105.101893), math.radians(-74.898107)), False)
sketch5.addGeometry(Part.ArcOfCircle(Part.Circle(V(-17, -39.246528, 0), V(0, 0, 1), 4), math.radians(180), math.radians(254.898107)), False)
sketch5.addGeometry(Part.LineSegment(V(-21, -39.246528, 0), V(-21, 39.246528, 0)), False)
sketch5.addGeometry(Part.ArcOfCircle(Part.Circle(V(-17, 39.246528, 0), V(0, 0, 1), 4), math.radians(105.101893), math.radians(180)), False)
sketch5.addConstraint(Sketcher.Constraint("Tangent", 0, 2, 1, 1))
sketch5.addConstraint(Sketcher.Constraint("Tangent", 1, 2, 2, 1))
sketch5.addConstraint(Sketcher.Constraint("Tangent", 2, 2, 3, 1))
sketch5.addConstraint(Sketcher.Constraint("Tangent", 3, 2, 4, 1))
sketch5.addConstraint(Sketcher.Constraint("Tangent", 4, 2, 5, 1))
sketch5.addConstraint(Sketcher.Constraint("Tangent", 5, 2, 6, 1))
sketch5.addConstraint(Sketcher.Constraint("Tangent", 6, 2, 7, 1))
sketch5.addConstraint(Sketcher.Constraint("Tangent", 7, 2, 0, 1))
sketch5.addConstraint(Sketcher.Constraint("Tangent", 8, 1, 9, 2))
sketch5.addConstraint(Sketcher.Constraint("Tangent", 9, 1, 10, 1))
sketch5.addConstraint(Sketcher.Constraint("Tangent", 10, 2, 11, 2))
sketch5.addConstraint(Sketcher.Constraint("Tangent", 11, 1, 12, 2))
sketch5.addConstraint(Sketcher.Constraint("Tangent", 12, 1, 13, 2))
sketch5.addConstraint(Sketcher.Constraint("Tangent", 13, 1, 14, 1))
sketch5.addConstraint(Sketcher.Constraint("Tangent", 14, 2, 15, 2))
sketch5.addConstraint(Sketcher.Constraint("Tangent", 15, 1, 8, 2))
sketch5.addConstraint(Sketcher.Constraint("Vertical", 0))
sketch5.addConstraint(Sketcher.Constraint("Vertical", 4))
sketch5.addConstraint(Sketcher.Constraint("Vertical", 10))
sketch5.addConstraint(Sketcher.Constraint("Vertical", 14))
sketch5.addConstraint(Sketcher.Constraint("Coincident", 8, 3, 2, 3))
sketch5.addConstraint(Sketcher.Constraint("Coincident", 9, 3, 1, 3))
sketch5.addConstraint(Sketcher.Constraint("Coincident", 11, 3, 7, 3))
sketch5.addConstraint(Sketcher.Constraint("Coincident", 12, 3, 6, 3))
sketch5.addConstraint(Sketcher.Constraint("Coincident", 13, 3, 5, 3))
sketch5.addConstraint(Sketcher.Constraint("Equal", 1, 3))
sketch5.addConstraint(Sketcher.Constraint("Equal", 3, 5))
sketch5.addConstraint(Sketcher.Constraint("Equal", 2, 6))
sketch5.addConstraint(Sketcher.Constraint("Equal", 5, 7))
sketch5.addConstraint(Sketcher.Constraint("Equal", 13, 15))
sketch5.addConstraint(Sketcher.Constraint("Symmetric", 1, 3, 5, 3, -1, 1))
sketch5.addConstraint(Sketcher.Constraint("Symmetric", 2, 3, 6, 3, -1))
sketch5.addConstraint(Sketcher.Constraint("Radius", 1, 6.0))
sketch5.addConstraint(Sketcher.Constraint("Radius", 9, 4.0))
sketch5.addConstraint(Sketcher.Constraint("Radius", 2, 71.25))
sketch5.addConstraint(Sketcher.Constraint("DistanceX", -1, 1, 1, 3, 17.0))
sketch5.addConstraint(Sketcher.Constraint("DistanceY", 2, 3, 6, 3, 47.5))
pocket2 = body.newObject("PartDesign::Pocket", "Pocket001")
pocket2.Profile = sketch5
pocket2.Length = 2

# Sketch on XY plane
sketch6 = body.newObject("Sketcher::SketchObject", "Sketch005")
sketch6.AttachmentSupport = (doc.getObject("XY_Plane"), [""])
sketch6.MapMode = "FlatFace"
sketch6.AttachmentOffset = App.Placement(V(0, 0, -25), App.Rotation())
sketch6.addGeometry(Part.Circle(V(16.756704, 0, 0), V(0, 0, 1), 18.468279), False)
sketch6.addConstraint(Sketcher.Constraint("PointOnObject", 0, 3, -1))
sketch6.addConstraint(Sketcher.Constraint("Diameter", 0, 36.936558))
sketch6.addConstraint(Sketcher.Constraint("DistanceX", -1, 1, 0, 3, 16.756704))
pad4 = body.newObject("PartDesign::Pad", "Pad003")
pad4.Profile = sketch6
pad4.Length = 20

# Sketch on XY plane
sketch7 = body.newObject("Sketcher::SketchObject", "Sketch006")
sketch7.AttachmentSupport = (doc.getObject("XY_Plane"), [""])
sketch7.MapMode = "FlatFace"
sketch7.AttachmentOffset = App.Placement(V(0, 0, -25), App.Rotation())
sketch7.addGeometry(Part.Circle(V(16.756704, 0, 0), V(0, 0, 1), 13.468279), False)
sketch7.addConstraint(Sketcher.Constraint("PointOnObject", 0, 3, -1))
sketch7.addConstraint(Sketcher.Constraint("Diameter", 0, 26.936558))
sketch7.addConstraint(Sketcher.Constraint("DistanceX", -1, 1, 0, 3, 16.756704))
pocket3 = body.newObject("PartDesign::Pocket", "Pocket002")
pocket3.Profile = sketch7
pocket3.Length = 16
pocket3.Reversed = True

# Sketch on XY plane
sketch8 = body.newObject("Sketcher::SketchObject", "Sketch007")
sketch8.AttachmentSupport = (doc.getObject("XY_Plane"), [""])
sketch8.MapMode = "FlatFace"
sketch8.AttachmentOffset = App.Placement(V(0, 0, -25), App.Rotation())
sketch8.addGeometry(Part.Circle(V(-45.563544, 0, 0), V(0, 0, 1), 13.468279), False)
sketch8.addConstraint(Sketcher.Constraint("PointOnObject", 0, 3, -1))
sketch8.addConstraint(Sketcher.Constraint("Diameter", 0, 26.936558))
sketch8.addConstraint(Sketcher.Constraint("DistanceX", 0, 3, -1, 1, 45.563544))
pocket4 = body.newObject("PartDesign::Pocket", "Pocket003")
pocket4.Profile = sketch8
pocket4.Length = 25
pocket4.Reversed = True

# Sketch on XY plane
sketch9 = body.newObject("Sketcher::SketchObject", "Sketch008")
sketch9.AttachmentSupport = (doc.getObject("XY_Plane"), [""])
sketch9.MapMode = "FlatFace"
sketch9.AttachmentOffset = App.Placement(V(0, 0, -25), App.Rotation())
sketch9.addGeometry(Part.Circle(V(60, 67.5, 0), V(0, 0, 1), 6), False)
sketch9.addGeometry(Part.Circle(V(60, 67.5, 0), V(0, 0, 1), 4), False)
sketch9.addGeometry(Part.Circle(V(-60, 67.5, 0), V(0, 0, 1), 6), False)
sketch9.addGeometry(Part.Circle(V(-60, 67.5, 0), V(0, 0, 1), 4), False)
sketch9.addGeometry(Part.Circle(V(-60, -67.5, 0), V(0, 0, 1), 6), False)
sketch9.addGeometry(Part.Circle(V(-60, -67.5, 0), V(0, 0, 1), 4), False)
sketch9.addGeometry(Part.Circle(V(60, -67.5, 0), V(0, 0, 1), 6), False)
sketch9.addGeometry(Part.Circle(V(60, -67.5, 0), V(0, 0, 1), 4), False)
sketch9.addConstraint(Sketcher.Constraint("Coincident", 1, 3, 0, 3))
sketch9.addConstraint(Sketcher.Constraint("Coincident", 3, 3, 2, 3))
sketch9.addConstraint(Sketcher.Constraint("Coincident", 5, 3, 4, 3))
sketch9.addConstraint(Sketcher.Constraint("Coincident", 7, 3, 6, 3))
sketch9.addConstraint(Sketcher.Constraint("Equal", 0, 2))
sketch9.addConstraint(Sketcher.Constraint("Equal", 1, 3))
sketch9.addConstraint(Sketcher.Constraint("Equal", 2, 4))
sketch9.addConstraint(Sketcher.Constraint("Equal", 3, 5))
sketch9.addConstraint(Sketcher.Constraint("Equal", 4, 6))
sketch9.addConstraint(Sketcher.Constraint("Equal", 5, 7))
sketch9.addConstraint(Sketcher.Constraint("Symmetric", 0, 3, 4, 3, -1, 1))
sketch9.addConstraint(Sketcher.Constraint("Symmetric", 2, 3, 6, 3, -1, 1))
sketch9.addConstraint(Sketcher.Constraint("Symmetric", 0, 3, 2, 3, -2))
sketch9.addConstraint(Sketcher.Constraint("Diameter", 0, 12.0))
sketch9.addConstraint(Sketcher.Constraint("Diameter", 1, 8.0))
sketch9.addConstraint(Sketcher.Constraint("DistanceX", -1, 1, 0, 3, 60.0))
sketch9.addConstraint(Sketcher.Constraint("DistanceY", 4, 3, 2, 3, 135.0))
pocket5 = body.newObject("PartDesign::Pocket", "Pocket004")
pocket5.Profile = sketch9
pocket5.Length = 6
pocket5.Reversed = True

# Sketch on XY plane
sketch10 = body.newObject("Sketcher::SketchObject", "Sketch009")
sketch10.AttachmentSupport = (doc.getObject("XY_Plane"), [""])
sketch10.MapMode = "FlatFace"
sketch10.AttachmentOffset = App.Placement(V(0, 0, -9), App.Rotation())
sketch10.addGeometry(Part.LineSegment(V(11, -13.5, 0), V(11, -17.548154, 0)), False)
sketch10.addGeometry(Part.ArcOfCircle(Part.Circle(V(16.756704, 0, 0), V(0, 0, 1), 18.468279), math.radians(-172.220144), math.radians(-108.16217)), False)
sketch10.addGeometry(Part.LineSegment(V(-1.541584, -2.5, 0), V(14, -2.5, 0)), False)
sketch10.addGeometry(Part.ArcOfCircle(Part.Circle(V(14, -5.5, 0), V(0, 0, 1), 3), math.radians(0), math.radians(90)), False)
sketch10.addGeometry(Part.LineSegment(V(17, -5.5, 0), V(17, -7.5, 0)), False)
sketch10.addGeometry(Part.ArcOfCircle(Part.Circle(V(14, -7.5, 0), V(0, 0, 1), 3), math.radians(-90), math.radians(0)), False)
sketch10.addGeometry(Part.ArcOfCircle(Part.Circle(V(14, -13.5, 0), V(0, 0, 1), 3), math.radians(90), math.radians(156.269966)), False)
sketch10.addGeometry(Part.ArcOfCircle(Part.Circle(V(14, -13.5, 0), V(0, 0, 1), 3), math.radians(156.269966), math.radians(180)), False)
sketch10.addGeometry(Part.ArcOfCircle(Part.Circle(V(16.756704, 0, 0), V(0, 0, 1), 18.468279), math.radians(108.16217), math.radians(172.220144)), False)
sketch10.addGeometry(Part.LineSegment(V(11, 17.548154, 0), V(11, 13.5, 0)), False)
sketch10.addGeometry(Part.ArcOfCircle(Part.Circle(V(14, 13.5, 0), V(0, 0, 1), 3), math.radians(180), math.radians(203.730034)), False)
sketch10.addGeometry(Part.ArcOfCircle(Part.Circle(V(14, 13.5, 0), V(0, 0, 1), 3), math.radians(-156.269966), math.radians(-90)), False)
sketch10.addGeometry(Part.ArcOfCircle(Part.Circle(V(14, 7.5, 0), V(0, 0, 1), 3), math.radians(0), math.radians(90)), False)
sketch10.addGeometry(Part.LineSegment(V(17, 7.5, 0), V(17, 5.5, 0)), False)
sketch10.addGeometry(Part.ArcOfCircle(Part.Circle(V(14, 5.5, 0), V(0, 0, 1), 3), math.radians(-90), math.radians(0)), False)
sketch10.addGeometry(Part.LineSegment(V(14, 2.5, 0), V(-1.541584, 2.5, 0)), False)
sketch10.addConstraint(Sketcher.Constraint("Coincident", 0, 2, 1, 2))
sketch10.addConstraint(Sketcher.Constraint("Coincident", 1, 1, 2, 1))
sketch10.addConstraint(Sketcher.Constraint("Tangent", 2, 2, 3, 2))
sketch10.addConstraint(Sketcher.Constraint("Tangent", 3, 1, 4, 1))
sketch10.addConstraint(Sketcher.Constraint("Tangent", 4, 2, 5, 2))
sketch10.addConstraint(Sketcher.Constraint("Tangent", 5, 1, 6, 1))
sketch10.addConstraint(Sketcher.Constraint("Tangent", 6, 2, 7, 1))
sketch10.addConstraint(Sketcher.Constraint("Tangent", 7, 2, 0, 1))
sketch10.addConstraint(Sketcher.Constraint("Coincident", 8, 1, 9, 1))
sketch10.addConstraint(Sketcher.Constraint("Tangent", 9, 2, 10, 1))
sketch10.addConstraint(Sketcher.Constraint("Tangent", 10, 2, 11, 1))
sketch10.addConstraint(Sketcher.Constraint("Tangent", 11, 2, 12, 2))
sketch10.addConstraint(Sketcher.Constraint("Tangent", 12, 1, 13, 1))
sketch10.addConstraint(Sketcher.Constraint("Tangent", 13, 2, 14, 2))
sketch10.addConstraint(Sketcher.Constraint("Tangent", 14, 1, 15, 1))
sketch10.addConstraint(Sketcher.Constraint("Coincident", 15, 2, 8, 2))
sketch10.addConstraint(Sketcher.Constraint("Vertical", 0))
sketch10.addConstraint(Sketcher.Constraint("Horizontal", 2))
sketch10.addConstraint(Sketcher.Constraint("Vertical", 4))
sketch10.addConstraint(Sketcher.Constraint("Vertical", 9))
sketch10.addConstraint(Sketcher.Constraint("Vertical", 13))
sketch10.addConstraint(Sketcher.Constraint("Horizontal", 15))
sketch10.addConstraint(Sketcher.Constraint("Coincident", 8, 3, 1, 3))
sketch10.addConstraint(Sketcher.Constraint("Equal", 3, 5))
sketch10.addConstraint(Sketcher.Constraint("Equal", 5, 6))
sketch10.addConstraint(Sketcher.Constraint("Equal", 6, 7))
sketch10.addConstraint(Sketcher.Constraint("Equal", 1, 8))
sketch10.addConstraint(Sketcher.Constraint("Equal", 7, 10))
sketch10.addConstraint(Sketcher.Constraint("Equal", 10, 11))
sketch10.addConstraint(Sketcher.Constraint("Equal", 11, 12))
sketch10.addConstraint(Sketcher.Constraint("Equal", 12, 14))
sketch10.addConstraint(Sketcher.Constraint("Symmetric", 6, 3, 10, 3, -1))
sketch10.addConstraint(Sketcher.Constraint("Symmetric", 3, 3, 14, 3, -1))
sketch10.addConstraint(Sketcher.Constraint("PointOnObject", 1, 3, -1))
sketch10.addConstraint(Sketcher.Constraint("Vertical", 5, 3, 6, 3))
sketch10.addConstraint(Sketcher.Constraint("Vertical", 6, 2, 10, 2))
sketch10.addConstraint(Sketcher.Constraint("Radius", 3, 3.0))
sketch10.addConstraint(Sketcher.Constraint("DistanceY", 4, 2, 4, 1, 2.0))
sketch10.addConstraint(Sketcher.Constraint("DistanceX", -1, 1, 3, 3, 14.0))
sketch10.addConstraint(Sketcher.Constraint("DistanceY", 3, 3, 10, 3, 19.0))
sketch10.addConstraint(Sketcher.Constraint("Radius", 1, 18.468279))
sketch10.addConstraint(Sketcher.Constraint("DistanceX", 2, 1, 2, 2, 15.541584))
sketch10.addConstraint(Sketcher.Constraint("DistanceX", 15, 2, 10, 2, 12.795229))
pocket6 = body.newObject("PartDesign::Pocket", "Pocket005")
pocket6.Profile = sketch10
pocket6.Length = 9
doc.recompute()

fillet = body.newObject("PartDesign::Fillet", "Fillet")
fillet.Base = (pocket6, edges_at(pocket6, [
    (-57, -23.703, -18),
    (-57, 23.703, -18),
    (25, 0, -5),
    (25, 16.527, -11.5),
    (25, -16.527, -11.5),
    (25, -27.887, -18),
    (35.225, 0, -18),
]))
fillet.Radius = 3
doc.recompute()

fillet2 = body.newObject("PartDesign::Fillet", "Fillet001")
fillet2.Base = (fillet, edges_at(fillet, [(0, -90, -25)]))
fillet2.Radius = 2

doc.recompute()
